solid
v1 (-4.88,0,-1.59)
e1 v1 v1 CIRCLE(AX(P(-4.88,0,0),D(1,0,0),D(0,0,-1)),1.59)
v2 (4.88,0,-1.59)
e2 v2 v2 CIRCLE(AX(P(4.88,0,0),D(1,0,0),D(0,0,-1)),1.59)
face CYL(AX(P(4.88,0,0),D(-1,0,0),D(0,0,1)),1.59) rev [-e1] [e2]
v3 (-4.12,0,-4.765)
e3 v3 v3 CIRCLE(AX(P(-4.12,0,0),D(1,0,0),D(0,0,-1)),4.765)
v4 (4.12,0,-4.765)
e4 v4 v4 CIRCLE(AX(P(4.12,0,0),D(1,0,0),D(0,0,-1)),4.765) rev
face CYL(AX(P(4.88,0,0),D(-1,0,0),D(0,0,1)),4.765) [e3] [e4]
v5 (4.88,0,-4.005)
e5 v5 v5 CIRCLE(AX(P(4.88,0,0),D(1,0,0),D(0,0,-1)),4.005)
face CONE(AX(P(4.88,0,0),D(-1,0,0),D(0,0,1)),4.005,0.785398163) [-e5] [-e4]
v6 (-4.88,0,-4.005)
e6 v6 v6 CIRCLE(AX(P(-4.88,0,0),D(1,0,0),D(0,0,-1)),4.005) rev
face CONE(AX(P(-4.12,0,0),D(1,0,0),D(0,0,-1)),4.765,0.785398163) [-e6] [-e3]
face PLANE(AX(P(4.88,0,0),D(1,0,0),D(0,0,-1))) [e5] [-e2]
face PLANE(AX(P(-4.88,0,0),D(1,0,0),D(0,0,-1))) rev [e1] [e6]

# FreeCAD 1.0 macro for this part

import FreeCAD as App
import Part
import Sketcher
Q = App.Units.Quantity


def edges_at(feature, points):
    """Names of the edges that pass closest to the given points."""
    edges = feature.Shape.Edges
    near = lambda p: min(range(len(edges)), key=lambda i: edges[i].distToShape(Part.Vertex(*p))[0])
    return sorted({f"Edge{near(p) + 1}" for p in points})

doc = App.newDocument("Part")
body = doc.addObject("PartDesign::Body", "Body")

# Sketch on YZ plane
sketch1 = body.newObject("Sketcher::SketchObject", "Sketch")
sketch1.AttachmentSupport = (doc.getObject("YZ_Plane"), [""])
sketch1.MapMode = "FlatFace"
sketch1.addGeometry(Part.Circle(App.Vector(0, 0, 0), App.Vector(0, 0, 1), 4.765), False)
sketch1.addGeometry(Part.Circle(App.Vector(0, 0, 0), App.Vector(0, 0, 1), 1.59), False)
sketch1.addConstraint(Sketcher.Constraint("Coincident", 0, 3, -1, 1))
sketch1.addConstraint(Sketcher.Constraint("Coincident", 1, 3, -1, 1))
sketch1.addConstraint(Sketcher.Constraint("Diameter", 0, Q("9.53 mm")))
sketch1.addConstraint(Sketcher.Constraint("Diameter", 1, Q("3.18 mm")))
pad1 = body.newObject("PartDesign::Pad", "Pad")
pad1.Profile = sketch1
pad1.Length = 9.76
pad1.Midplane = True
doc.recompute()

chamfer = body.newObject("PartDesign::Chamfer", "Chamfer")
chamfer.Base = (pad1, edges_at(pad1, [(-4.88, 0, 4.765), (4.88, 0, 4.765)]))
chamfer.Size = 0.76

doc.recompute()
